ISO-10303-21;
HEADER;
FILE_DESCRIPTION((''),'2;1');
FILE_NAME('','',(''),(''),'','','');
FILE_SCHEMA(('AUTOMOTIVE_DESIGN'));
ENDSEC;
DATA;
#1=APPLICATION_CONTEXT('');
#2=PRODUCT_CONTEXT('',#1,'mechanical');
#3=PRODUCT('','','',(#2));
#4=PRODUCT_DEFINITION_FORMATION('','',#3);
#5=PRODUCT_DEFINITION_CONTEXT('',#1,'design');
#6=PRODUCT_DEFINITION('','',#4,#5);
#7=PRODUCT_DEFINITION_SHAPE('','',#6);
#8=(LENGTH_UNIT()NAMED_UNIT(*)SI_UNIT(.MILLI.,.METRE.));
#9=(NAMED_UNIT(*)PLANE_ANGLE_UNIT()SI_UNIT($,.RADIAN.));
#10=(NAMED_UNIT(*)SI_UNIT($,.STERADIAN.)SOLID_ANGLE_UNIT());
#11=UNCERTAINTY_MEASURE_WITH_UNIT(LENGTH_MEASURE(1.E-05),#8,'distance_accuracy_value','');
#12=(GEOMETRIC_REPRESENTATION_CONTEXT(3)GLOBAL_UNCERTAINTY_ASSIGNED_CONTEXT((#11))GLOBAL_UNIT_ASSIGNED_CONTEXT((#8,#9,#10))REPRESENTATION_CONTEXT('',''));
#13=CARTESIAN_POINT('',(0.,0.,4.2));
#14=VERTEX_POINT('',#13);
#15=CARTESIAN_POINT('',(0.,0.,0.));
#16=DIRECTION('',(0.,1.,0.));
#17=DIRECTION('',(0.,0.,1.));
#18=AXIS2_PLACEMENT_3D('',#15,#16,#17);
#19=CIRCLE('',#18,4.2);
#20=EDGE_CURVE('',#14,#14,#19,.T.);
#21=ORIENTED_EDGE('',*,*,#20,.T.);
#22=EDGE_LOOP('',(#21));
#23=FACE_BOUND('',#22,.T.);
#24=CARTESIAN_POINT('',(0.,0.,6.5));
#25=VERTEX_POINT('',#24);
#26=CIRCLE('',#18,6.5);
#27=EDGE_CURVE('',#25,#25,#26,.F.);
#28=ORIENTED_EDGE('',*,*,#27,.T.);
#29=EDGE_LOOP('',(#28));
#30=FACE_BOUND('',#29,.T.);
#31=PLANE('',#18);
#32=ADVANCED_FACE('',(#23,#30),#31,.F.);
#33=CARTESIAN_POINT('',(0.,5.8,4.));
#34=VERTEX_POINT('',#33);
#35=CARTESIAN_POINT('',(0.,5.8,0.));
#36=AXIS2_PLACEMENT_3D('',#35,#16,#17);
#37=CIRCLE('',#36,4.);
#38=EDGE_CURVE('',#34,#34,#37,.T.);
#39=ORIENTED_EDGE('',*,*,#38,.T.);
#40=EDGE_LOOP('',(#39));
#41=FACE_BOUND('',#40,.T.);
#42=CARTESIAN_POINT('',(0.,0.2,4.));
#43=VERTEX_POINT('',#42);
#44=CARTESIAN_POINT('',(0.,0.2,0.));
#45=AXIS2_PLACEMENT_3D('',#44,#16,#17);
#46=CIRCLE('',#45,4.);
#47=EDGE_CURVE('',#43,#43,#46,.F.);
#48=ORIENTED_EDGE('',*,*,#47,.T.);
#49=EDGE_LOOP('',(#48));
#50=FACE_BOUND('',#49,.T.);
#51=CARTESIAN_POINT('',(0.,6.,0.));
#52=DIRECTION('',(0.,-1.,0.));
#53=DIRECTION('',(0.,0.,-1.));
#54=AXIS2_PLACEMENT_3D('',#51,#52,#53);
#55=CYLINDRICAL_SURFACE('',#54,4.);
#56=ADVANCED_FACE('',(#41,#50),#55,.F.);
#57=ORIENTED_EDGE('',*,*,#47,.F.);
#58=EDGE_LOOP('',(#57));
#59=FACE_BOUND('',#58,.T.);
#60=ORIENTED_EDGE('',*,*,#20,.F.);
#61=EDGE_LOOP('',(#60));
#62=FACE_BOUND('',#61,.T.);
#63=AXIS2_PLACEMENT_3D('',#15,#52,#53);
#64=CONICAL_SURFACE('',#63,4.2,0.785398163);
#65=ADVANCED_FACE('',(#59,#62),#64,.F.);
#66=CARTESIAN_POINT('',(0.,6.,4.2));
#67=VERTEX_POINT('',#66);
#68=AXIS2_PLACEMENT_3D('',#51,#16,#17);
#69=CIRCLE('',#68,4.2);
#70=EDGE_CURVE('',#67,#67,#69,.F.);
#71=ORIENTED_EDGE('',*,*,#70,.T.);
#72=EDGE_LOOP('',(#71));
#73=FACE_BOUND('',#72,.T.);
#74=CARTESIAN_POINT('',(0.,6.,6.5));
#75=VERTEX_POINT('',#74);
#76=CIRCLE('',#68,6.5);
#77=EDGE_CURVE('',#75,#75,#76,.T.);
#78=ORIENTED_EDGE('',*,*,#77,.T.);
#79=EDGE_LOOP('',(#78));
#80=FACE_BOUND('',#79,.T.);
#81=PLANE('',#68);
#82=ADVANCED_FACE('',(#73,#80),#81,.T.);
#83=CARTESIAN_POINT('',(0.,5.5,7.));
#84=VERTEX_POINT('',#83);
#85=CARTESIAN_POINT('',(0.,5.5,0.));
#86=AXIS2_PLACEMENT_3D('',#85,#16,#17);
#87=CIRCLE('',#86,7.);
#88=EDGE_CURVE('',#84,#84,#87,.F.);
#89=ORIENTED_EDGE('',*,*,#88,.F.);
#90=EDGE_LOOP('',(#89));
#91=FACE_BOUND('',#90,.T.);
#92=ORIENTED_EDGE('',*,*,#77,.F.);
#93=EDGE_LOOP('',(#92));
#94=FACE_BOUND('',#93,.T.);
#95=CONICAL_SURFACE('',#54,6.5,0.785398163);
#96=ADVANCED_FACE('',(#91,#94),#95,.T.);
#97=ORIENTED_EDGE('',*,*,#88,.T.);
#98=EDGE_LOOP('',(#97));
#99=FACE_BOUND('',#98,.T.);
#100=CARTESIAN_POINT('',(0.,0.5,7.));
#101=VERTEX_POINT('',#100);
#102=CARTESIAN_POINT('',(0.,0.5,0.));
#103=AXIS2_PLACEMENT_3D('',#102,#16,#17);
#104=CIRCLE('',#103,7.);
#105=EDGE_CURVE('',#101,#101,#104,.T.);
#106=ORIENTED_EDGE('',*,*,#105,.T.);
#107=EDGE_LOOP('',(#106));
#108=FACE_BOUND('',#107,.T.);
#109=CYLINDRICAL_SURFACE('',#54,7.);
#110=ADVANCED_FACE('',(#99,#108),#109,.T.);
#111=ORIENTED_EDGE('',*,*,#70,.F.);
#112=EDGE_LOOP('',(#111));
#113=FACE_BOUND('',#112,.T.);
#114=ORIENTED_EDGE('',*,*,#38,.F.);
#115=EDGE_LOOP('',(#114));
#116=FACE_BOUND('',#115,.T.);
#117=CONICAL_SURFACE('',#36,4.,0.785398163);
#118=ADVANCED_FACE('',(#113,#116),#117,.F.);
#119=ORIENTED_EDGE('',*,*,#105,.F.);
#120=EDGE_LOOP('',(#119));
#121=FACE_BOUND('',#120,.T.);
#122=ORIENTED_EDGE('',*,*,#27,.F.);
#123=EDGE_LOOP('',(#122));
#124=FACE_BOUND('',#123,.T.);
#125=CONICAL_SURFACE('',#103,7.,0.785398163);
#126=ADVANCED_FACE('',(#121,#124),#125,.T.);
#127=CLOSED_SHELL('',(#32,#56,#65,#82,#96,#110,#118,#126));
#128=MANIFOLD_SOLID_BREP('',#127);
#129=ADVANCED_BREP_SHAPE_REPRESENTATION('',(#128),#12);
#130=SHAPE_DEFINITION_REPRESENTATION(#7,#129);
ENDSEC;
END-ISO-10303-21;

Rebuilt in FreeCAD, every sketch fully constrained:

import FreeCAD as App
import Part
import Sketcher
Q = App.Units.Quantity


def edges_at(feature, points):
    """Names of the edges that pass closest to the given points."""
    edges = feature.Shape.Edges
    near = lambda p: min(range(len(edges)), key=lambda i: edges[i].distToShape(Part.Vertex(*p))[0])
    return sorted({f"Edge{near(p) + 1}" for p in points})

doc = App.newDocument("Part")
body = doc.addObject("PartDesign::Body", "Body")

# Sketch on XZ plane
sketch1 = body.newObject("Sketcher::SketchObject", "Sketch")
sketch1.AttachmentSupport = (doc.getObject("XZ_Plane"), [""])
sketch1.MapMode = "FlatFace"
sketch1.addGeometry([
    Part.Circle(App.Vector(0, 0, 0), App.Vector(0, 0, 1), 7),
    Part.Circle(App.Vector(0, 0, 0), App.Vector(0, 0, 1), 4),
], False)
sketch1.addConstraint([
    Sketcher.Constraint("Coincident", 0, 3, -1, 1),
    Sketcher.Constraint("Coincident", 1, 3, -1, 1),
    Sketcher.Constraint("Diameter", 0, Q("14 mm")),
    Sketcher.Constraint("Diameter", 1, Q("8 mm")),
])
pad1 = body.newObject("PartDesign::Pad", "Pad")
pad1.Profile = sketch1
pad1.Length = 6
pad1.Reversed = True
doc.recompute()

chamfer = body.newObject("PartDesign::Chamfer", "Chamfer")
chamfer.Base = (pad1, edges_at(pad1, [(0, 0, -7), (0, 6, -7)]))
chamfer.Size = 0.5
doc.recompute()

chamfer2 = body.newObject("PartDesign::Chamfer", "Chamfer001")
chamfer2.Base = (chamfer, edges_at(chamfer, [(0, 0, -4), (0, 6, -4)]))
chamfer2.Size = 0.2

doc.recompute()
